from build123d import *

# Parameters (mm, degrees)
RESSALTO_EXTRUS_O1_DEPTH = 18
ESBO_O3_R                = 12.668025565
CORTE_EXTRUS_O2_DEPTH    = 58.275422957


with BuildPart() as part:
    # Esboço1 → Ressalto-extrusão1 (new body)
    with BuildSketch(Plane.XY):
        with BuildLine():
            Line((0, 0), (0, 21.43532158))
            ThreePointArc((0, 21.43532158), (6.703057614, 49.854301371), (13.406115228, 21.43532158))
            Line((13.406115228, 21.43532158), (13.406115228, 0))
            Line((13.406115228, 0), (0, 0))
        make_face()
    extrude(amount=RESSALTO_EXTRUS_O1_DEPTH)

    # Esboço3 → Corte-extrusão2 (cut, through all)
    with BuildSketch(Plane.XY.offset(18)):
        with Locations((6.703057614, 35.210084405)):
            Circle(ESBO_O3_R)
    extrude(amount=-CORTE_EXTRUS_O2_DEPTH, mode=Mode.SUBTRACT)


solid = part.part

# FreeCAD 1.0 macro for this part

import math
import FreeCAD as App
import Part
import Sketcher
from FreeCAD import Vector
Q = App.Units.Quantity

doc = App.newDocument("Part")
body = doc.addObject("PartDesign::Body", "Body")

sketch1 = doc.addObject("Sketcher::SketchObject", "Sketch")
body.addObject(sketch1)
sketch1.AttachmentSupport = (doc.XY_Plane, [""])
sketch1.MapMode = "FlatFace"
sketch1.addGeometry(Part.LineSegment(Vector(0, 21, 0), Vector(0, 0, 0)), False)
sketch1.addGeometry(Part.LineSegment(Vector(0, 0, 0), Vector(13, 0, 0)), False)
sketch1.addGeometry(Part.LineSegment(Vector(13, 0, 0), Vector(13, 21, 0)), False)
sketch1.addGeometry(Part.ArcOfCircle(Part.Circle(Vector(7, 35, 0), Vector(0, 0, 1), 15), math.radians(-63), math.radians(243)), False)
sketch1.addConstraint(Sketcher.Constraint("Coincident", 0, 2, 1, 1))
sketch1.addConstraint(Sketcher.Constraint("Coincident", 1, 2, 2, 1))
sketch1.addConstraint(Sketcher.Constraint("Coincident", 2, 2, 3, 1))
sketch1.addConstraint(Sketcher.Constraint("Coincident", 3, 2, 0, 1))
sketch1.addConstraint(Sketcher.Constraint("Vertical", 0))
sketch1.addConstraint(Sketcher.Constraint("Horizontal", 1))
sketch1.addConstraint(Sketcher.Constraint("Vertical", 2))
sketch1.addConstraint(Sketcher.Constraint("Coincident", 0, 2, -1, 1))
sketch1.addConstraint(Sketcher.Constraint("Horizontal", 2, 2, 3, 2))
sketch1.addConstraint(Sketcher.Constraint("Radius", 3, Q("15 mm")))
sketch1.addConstraint(Sketcher.Constraint("DistanceY", 0, 2, 0, 1, Q("21.435322 mm")))
sketch1.addConstraint(Sketcher.Constraint("DistanceY", -1, 1, 3, 3, Q("34.854301 mm")))
pad1 = doc.addObject("PartDesign::Pad", "Pad")
body.addObject(pad1)
pad1.Profile = sketch1
pad1.Length = 18

sketch2 = doc.addObject("Sketcher::SketchObject", "Sketch001")
body.addObject(sketch2)
sketch2.AttachmentSupport = (doc.XY_Plane, [""])
sketch2.MapMode = "FlatFace"
sketch2.AttachmentOffset = App.Placement(Vector(0, 0, 18), App.Rotation())
sketch2.addGeometry(Part.Circle(Vector(7, 35, 0), Vector(0, 0, 1), 13), False)
sketch2.addConstraint(Sketcher.Constraint("Diameter", 0, Q("25.336051 mm")))
sketch2.addConstraint(Sketcher.Constraint("DistanceX", -1, 1, 0, 3, Q("6.703058 mm")))
sketch2.addConstraint(Sketcher.Constraint("DistanceY", -1, 1, 0, 3, Q("35.210084 mm")))
pocket1 = doc.addObject("PartDesign::Pocket", "Pocket")
body.addObject(pocket1)
pocket1.Profile = sketch2
pocket1.Type = "ThroughAll"

doc.recompute()
